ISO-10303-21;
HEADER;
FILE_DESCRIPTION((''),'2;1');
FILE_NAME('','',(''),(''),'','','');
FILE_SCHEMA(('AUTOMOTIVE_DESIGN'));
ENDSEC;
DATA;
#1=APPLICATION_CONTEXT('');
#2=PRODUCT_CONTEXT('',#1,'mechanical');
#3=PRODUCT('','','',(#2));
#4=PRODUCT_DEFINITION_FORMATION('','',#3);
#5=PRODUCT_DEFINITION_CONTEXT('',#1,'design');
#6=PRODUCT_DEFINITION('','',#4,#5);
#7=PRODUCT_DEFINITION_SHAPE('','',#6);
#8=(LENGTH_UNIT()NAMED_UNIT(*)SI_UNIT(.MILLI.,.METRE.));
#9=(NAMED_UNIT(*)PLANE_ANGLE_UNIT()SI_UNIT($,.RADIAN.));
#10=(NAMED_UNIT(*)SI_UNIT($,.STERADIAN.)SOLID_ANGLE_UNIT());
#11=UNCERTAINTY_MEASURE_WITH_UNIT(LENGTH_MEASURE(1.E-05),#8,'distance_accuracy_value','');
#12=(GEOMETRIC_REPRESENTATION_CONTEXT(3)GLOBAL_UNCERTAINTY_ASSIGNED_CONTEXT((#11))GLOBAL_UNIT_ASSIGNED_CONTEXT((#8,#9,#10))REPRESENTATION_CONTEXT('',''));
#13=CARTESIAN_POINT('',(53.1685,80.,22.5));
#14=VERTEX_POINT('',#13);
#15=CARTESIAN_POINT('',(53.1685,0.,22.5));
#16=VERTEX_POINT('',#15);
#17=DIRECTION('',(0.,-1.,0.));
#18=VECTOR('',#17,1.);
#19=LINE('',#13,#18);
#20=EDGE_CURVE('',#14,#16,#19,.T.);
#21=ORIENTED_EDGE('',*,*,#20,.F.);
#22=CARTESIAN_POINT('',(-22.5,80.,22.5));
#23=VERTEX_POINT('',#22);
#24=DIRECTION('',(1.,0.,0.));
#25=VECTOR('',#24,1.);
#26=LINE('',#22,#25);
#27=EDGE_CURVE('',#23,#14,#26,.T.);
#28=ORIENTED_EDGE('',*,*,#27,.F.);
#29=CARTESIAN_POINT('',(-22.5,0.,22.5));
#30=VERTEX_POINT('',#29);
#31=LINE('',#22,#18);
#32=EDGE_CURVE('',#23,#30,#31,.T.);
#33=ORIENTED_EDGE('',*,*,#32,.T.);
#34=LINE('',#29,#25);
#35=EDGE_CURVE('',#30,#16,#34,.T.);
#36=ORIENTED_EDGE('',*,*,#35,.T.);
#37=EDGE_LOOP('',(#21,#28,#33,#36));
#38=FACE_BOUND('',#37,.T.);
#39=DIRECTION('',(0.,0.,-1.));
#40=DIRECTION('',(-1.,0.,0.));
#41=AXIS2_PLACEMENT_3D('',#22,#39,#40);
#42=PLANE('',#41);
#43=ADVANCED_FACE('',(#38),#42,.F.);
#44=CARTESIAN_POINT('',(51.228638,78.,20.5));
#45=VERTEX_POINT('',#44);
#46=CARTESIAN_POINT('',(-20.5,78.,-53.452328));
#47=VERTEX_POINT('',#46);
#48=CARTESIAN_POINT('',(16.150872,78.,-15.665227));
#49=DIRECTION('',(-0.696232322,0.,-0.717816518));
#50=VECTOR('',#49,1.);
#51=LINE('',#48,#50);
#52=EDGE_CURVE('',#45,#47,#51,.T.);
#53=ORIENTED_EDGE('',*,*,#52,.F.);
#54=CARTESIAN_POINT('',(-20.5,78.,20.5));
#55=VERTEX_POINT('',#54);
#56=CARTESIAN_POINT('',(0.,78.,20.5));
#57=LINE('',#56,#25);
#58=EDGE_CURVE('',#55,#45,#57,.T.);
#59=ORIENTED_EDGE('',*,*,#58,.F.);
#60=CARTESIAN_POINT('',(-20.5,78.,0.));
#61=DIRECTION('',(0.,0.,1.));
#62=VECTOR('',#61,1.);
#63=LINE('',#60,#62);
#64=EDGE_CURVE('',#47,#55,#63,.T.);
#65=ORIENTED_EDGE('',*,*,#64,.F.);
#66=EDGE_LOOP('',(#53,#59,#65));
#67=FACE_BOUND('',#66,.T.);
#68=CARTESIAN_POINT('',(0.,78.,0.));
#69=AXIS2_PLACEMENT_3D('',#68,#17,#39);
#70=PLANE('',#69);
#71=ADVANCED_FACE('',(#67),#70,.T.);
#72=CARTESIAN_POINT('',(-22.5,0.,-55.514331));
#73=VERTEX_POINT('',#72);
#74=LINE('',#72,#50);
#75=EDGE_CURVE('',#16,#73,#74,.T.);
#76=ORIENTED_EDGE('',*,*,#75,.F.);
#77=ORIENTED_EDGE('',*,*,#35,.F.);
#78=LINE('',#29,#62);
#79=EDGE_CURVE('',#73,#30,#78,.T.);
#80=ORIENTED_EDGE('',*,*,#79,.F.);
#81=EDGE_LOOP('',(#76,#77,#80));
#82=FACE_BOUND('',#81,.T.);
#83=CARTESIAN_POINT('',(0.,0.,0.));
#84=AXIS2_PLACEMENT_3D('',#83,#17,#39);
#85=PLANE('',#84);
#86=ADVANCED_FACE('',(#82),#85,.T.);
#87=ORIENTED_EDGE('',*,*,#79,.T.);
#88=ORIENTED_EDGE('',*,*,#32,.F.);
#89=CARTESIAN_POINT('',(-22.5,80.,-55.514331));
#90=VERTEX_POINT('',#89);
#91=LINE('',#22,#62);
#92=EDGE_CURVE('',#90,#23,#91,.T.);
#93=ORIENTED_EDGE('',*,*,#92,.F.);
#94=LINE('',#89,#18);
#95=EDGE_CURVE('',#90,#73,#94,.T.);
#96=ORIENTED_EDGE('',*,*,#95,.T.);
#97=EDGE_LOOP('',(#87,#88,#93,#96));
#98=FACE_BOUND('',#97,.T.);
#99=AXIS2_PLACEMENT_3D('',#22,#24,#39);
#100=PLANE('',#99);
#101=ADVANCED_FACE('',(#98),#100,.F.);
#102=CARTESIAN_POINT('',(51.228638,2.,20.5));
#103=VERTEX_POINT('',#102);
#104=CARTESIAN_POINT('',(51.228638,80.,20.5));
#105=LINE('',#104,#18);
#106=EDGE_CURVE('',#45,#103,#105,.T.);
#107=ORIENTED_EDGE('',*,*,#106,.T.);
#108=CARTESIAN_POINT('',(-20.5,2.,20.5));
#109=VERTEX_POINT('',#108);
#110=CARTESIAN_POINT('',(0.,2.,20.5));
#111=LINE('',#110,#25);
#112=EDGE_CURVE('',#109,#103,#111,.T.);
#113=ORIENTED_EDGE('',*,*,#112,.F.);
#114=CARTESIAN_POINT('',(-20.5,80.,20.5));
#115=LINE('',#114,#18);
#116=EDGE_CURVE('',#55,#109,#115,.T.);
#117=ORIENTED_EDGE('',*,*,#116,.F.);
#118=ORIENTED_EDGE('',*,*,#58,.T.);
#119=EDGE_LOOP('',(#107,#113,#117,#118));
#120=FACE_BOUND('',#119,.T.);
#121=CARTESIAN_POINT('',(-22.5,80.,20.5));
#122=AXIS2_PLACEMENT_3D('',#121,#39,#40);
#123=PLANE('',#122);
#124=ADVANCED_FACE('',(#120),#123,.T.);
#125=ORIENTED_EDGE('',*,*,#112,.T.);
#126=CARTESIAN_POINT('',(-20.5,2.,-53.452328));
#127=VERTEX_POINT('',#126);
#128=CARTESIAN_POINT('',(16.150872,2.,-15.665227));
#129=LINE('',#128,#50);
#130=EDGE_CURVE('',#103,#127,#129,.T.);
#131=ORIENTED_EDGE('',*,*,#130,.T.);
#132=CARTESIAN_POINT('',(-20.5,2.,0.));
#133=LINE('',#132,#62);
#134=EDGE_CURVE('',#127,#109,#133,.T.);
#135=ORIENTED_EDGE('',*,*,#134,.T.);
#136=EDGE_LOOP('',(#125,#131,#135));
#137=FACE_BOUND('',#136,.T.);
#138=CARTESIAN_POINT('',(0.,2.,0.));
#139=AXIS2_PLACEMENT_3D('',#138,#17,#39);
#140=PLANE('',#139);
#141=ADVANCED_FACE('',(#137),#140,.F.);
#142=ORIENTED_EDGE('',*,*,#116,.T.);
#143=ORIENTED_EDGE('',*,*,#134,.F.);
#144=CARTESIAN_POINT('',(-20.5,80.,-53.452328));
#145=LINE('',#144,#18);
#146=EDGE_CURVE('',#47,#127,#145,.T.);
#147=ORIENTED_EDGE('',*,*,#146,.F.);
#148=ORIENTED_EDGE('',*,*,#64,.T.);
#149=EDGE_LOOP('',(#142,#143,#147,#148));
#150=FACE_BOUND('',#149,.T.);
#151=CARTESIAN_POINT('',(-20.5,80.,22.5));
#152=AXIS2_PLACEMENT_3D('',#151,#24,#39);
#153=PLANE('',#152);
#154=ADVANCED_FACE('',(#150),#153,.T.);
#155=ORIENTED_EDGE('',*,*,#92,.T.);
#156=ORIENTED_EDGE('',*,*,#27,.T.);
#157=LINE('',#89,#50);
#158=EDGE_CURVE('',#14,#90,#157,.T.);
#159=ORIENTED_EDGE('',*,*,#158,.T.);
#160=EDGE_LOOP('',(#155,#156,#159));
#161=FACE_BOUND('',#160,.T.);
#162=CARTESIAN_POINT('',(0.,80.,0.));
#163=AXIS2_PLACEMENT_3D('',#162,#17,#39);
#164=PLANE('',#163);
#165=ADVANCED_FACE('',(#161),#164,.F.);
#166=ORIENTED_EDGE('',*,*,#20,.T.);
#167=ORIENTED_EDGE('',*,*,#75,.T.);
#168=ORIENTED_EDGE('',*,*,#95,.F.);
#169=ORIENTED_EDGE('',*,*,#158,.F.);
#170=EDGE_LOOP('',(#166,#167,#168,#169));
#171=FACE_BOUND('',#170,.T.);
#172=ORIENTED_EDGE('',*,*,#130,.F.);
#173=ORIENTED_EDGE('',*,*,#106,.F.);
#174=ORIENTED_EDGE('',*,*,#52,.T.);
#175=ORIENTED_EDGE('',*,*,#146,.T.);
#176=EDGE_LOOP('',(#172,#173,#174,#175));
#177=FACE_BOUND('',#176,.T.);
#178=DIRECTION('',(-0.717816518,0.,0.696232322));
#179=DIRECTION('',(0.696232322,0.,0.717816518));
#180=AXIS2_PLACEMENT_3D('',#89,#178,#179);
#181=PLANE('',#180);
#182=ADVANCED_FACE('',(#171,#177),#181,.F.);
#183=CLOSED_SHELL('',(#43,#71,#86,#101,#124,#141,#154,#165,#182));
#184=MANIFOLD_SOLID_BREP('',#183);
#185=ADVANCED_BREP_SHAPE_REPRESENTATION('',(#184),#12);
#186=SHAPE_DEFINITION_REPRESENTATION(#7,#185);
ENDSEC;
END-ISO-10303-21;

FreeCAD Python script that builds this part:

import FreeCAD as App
import Part
import Sketcher


def faces_at(feature, points):
    """Names of the faces that lie closest to the given points."""
    faces = feature.Shape.Faces
    near = lambda p: min(range(len(faces)), key=lambda i: faces[i].distToShape(Part.Vertex(*p))[0])
    return sorted({f"Face{near(p) + 1}" for p in points})


def add_polygon(sketch, points):
    """Adds a closed chain of lines whose ends are joined by coincident constraints."""
    first, n = sketch.GeometryCount, len(points)
    for a, b in zip(points, points[1:] + points[:1]):
        sketch.addGeometry(Part.LineSegment(App.Vector(*a, 0), App.Vector(*b, 0)), False)
    for i in range(n):
        sketch.addConstraint(Sketcher.Constraint("Coincident", first + i, 2, first + (i + 1) % n, 1))

doc = App.newDocument("Part")
body = doc.addObject("PartDesign::Body", "Body")

# Sketch on XZ plane
sketch1 = body.newObject("Sketcher::SketchObject", "Sketch")
sketch1.AttachmentSupport = (doc.getObject("XZ_Plane"), [""])
sketch1.MapMode = "FlatFace"
add_polygon(sketch1, [(-22, 22), (53, 22), (-22, -56)])  # lines 0-2
sketch1.addConstraint([
    Sketcher.Constraint("Horizontal", 0),
    Sketcher.Constraint("Vertical", 2),
    Sketcher.Constraint("DistanceY", -1, 1, 0, 2, 22.5),
    Sketcher.Constraint("DistanceX", 1, 2, -1, 1, 22.5),
    Sketcher.Constraint("DistanceX", 0, 1, 0, 2, 75.6685),
    Sketcher.Constraint("DistanceY", 2, 1, 2, 2, 78.014331),
])
pad1 = body.newObject("PartDesign::Pad", "Pad")
pad1.Profile = sketch1
pad1.Length = 80
pad1.Reversed = True
doc.recompute()

thickness = body.newObject("PartDesign::Thickness", "Thickness")
thickness.Base = (pad1, faces_at(pad1, [(15.334, 40, -16.507)]))
thickness.Value = 2
thickness.Reversed = True
thickness.Join = "Intersection"

doc.recompute()
